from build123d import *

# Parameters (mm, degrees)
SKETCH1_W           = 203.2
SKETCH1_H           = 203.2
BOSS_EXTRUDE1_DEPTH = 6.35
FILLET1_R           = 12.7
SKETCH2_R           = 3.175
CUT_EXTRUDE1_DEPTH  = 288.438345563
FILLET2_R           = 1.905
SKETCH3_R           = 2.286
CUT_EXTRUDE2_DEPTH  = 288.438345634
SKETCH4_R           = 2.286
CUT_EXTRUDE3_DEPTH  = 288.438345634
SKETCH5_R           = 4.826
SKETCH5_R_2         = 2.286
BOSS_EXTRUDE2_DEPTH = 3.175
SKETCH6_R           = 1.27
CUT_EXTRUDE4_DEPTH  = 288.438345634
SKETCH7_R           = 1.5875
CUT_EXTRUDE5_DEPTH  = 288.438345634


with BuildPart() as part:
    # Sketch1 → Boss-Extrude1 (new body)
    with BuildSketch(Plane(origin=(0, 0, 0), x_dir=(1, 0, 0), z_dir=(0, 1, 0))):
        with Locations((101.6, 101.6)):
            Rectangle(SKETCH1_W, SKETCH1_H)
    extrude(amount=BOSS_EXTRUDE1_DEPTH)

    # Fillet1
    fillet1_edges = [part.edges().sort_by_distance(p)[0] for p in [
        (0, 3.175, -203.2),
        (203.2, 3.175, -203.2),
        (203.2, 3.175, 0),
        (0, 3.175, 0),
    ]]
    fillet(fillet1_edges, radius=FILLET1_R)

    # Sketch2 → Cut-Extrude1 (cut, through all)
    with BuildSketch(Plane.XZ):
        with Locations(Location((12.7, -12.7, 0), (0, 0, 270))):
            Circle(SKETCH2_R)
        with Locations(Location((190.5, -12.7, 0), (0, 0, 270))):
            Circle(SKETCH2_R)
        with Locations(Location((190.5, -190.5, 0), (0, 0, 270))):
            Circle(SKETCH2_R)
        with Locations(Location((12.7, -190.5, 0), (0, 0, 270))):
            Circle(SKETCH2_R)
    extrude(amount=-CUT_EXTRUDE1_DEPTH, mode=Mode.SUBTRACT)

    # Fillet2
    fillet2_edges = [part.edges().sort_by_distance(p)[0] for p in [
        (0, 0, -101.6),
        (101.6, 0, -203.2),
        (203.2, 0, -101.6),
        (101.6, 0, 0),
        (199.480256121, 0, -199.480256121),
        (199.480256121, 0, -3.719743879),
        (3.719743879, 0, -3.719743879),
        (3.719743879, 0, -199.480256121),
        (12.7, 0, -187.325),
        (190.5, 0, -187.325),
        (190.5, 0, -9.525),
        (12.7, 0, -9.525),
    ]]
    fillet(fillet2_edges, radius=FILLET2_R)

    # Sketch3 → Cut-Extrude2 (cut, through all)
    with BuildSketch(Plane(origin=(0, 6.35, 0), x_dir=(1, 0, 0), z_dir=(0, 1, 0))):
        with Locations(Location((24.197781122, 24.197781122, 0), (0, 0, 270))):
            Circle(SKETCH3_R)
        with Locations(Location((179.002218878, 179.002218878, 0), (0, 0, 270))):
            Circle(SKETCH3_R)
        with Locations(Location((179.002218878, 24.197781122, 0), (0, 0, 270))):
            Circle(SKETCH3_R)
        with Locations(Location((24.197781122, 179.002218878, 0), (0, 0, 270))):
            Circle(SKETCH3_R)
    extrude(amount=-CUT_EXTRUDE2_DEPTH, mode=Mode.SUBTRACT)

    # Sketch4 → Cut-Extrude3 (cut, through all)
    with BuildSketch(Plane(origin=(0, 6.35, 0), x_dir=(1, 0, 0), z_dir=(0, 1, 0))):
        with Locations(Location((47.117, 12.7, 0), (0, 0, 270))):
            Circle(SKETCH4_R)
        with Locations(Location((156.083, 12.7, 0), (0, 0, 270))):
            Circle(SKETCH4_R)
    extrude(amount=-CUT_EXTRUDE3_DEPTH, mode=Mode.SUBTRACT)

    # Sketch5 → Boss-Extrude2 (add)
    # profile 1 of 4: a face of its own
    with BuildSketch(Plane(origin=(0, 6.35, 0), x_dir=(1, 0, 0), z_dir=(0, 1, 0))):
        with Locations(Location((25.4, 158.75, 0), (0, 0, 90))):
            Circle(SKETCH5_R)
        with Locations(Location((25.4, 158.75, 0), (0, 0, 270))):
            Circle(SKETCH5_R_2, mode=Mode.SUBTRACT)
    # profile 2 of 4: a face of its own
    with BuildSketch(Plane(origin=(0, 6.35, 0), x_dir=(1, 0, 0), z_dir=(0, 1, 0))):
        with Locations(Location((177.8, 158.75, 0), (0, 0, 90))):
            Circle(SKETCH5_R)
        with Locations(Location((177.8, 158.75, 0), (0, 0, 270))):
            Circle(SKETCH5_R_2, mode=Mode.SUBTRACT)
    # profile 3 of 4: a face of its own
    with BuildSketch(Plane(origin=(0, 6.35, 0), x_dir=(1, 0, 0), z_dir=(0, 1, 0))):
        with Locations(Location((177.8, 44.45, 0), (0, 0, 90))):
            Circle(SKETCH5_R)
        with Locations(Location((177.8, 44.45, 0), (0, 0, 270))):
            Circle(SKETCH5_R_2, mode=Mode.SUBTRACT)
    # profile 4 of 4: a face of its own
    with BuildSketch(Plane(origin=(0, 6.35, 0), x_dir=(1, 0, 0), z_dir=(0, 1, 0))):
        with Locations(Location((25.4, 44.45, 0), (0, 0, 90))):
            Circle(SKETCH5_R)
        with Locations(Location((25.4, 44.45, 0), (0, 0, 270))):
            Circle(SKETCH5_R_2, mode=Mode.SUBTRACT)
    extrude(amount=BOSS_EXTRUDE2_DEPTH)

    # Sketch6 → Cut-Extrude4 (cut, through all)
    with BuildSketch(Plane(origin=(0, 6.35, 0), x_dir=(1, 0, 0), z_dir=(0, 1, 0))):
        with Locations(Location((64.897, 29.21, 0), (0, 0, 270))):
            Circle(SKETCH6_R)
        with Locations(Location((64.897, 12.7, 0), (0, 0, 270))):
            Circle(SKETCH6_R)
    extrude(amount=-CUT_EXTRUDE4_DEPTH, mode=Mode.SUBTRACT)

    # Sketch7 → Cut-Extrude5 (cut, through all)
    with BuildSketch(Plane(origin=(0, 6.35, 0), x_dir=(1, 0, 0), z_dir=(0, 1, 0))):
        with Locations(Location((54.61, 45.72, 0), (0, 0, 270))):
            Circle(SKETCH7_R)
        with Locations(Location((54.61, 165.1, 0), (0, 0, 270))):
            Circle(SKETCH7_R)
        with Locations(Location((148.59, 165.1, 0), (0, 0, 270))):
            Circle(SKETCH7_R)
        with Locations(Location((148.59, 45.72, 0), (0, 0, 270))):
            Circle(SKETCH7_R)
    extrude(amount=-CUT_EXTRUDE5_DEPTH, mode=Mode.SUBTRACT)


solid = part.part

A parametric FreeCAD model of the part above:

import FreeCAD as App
import Part
import Sketcher

V = App.Vector
Q = App.Units.Quantity


def edges_at(feature, points):
    """Names of the edges that pass closest to the given points."""
    edges = feature.Shape.Edges
    near = lambda p: min(range(len(edges)), key=lambda i: edges[i].distToShape(Part.Vertex(*p))[0])
    return sorted({f"Edge{near(p) + 1}" for p in points})


def add_polygon(sketch, points):
    """Adds a closed chain of lines whose ends are joined by coincident constraints."""
    first, n = sketch.GeometryCount, len(points)
    for a, b in zip(points, points[1:] + points[:1]):
        sketch.addGeometry(Part.LineSegment(App.Vector(*a, 0), App.Vector(*b, 0)), False)
    for i in range(n):
        sketch.addConstraint(Sketcher.Constraint("Coincident", first + i, 2, first + (i + 1) % n, 1))

doc = App.newDocument("Part")
params = doc.addObject("Spreadsheet::Sheet", "Params")
for row, (alias, value) in enumerate([
    ("sketch1_width", "8 in"),
    ("pad1_length", "0.25 in"),
    ("fillet_radius", "0.5 in"),
    ("sketch2_diameter", "0.25 in"),
    ("fillet2_radius", "0.075 in"),
    ("sketch3_diameter", "0.18 in"),
    ("sketch4_diameter", "0.18 in"),
    ("sketch5_diameter", "0.38 in"),
    ("sketch5_diameter2", "0.18 in"),
    ("pad2_length", "0.125 in"),
    ("sketch6_diameter", "0.1 in"),
    ("sketch7_diameter", "0.125 in"),
], start=1):
    params.set(f"A{row}", alias)
    params.set(f"B{row}", "=" + value)
    params.setAlias(f"B{row}", alias)

body = doc.addObject("PartDesign::Body", "Body")

# Sketch on XZ plane
sketch1 = doc.addObject("Sketcher::SketchObject", "Sketch")
body.addObject(sketch1)
sketch1.AttachmentSupport = (doc.XZ_Plane, [""])
sketch1.MapMode = "FlatFace"
add_polygon(sketch1, [(0, -203.2), (0, 0), (203.2, 0), (203.2, -203.2)])  # lines 0-3
sketch1.addConstraint([
    Sketcher.Constraint("Vertical", 0),
    Sketcher.Constraint("Horizontal", 1),
    Sketcher.Constraint("Vertical", 2),
    Sketcher.Constraint("Horizontal", 3),
    Sketcher.Constraint("Coincident", 0, 2, -1, 1),
    Sketcher.Constraint("Equal", 3, 0),
    Sketcher.Constraint("DistanceX", 1, 1, 1, 2, Q("8 in")),
])
sketch1.setExpression("Constraints[10]", "Params.sketch1_width")
pad1 = doc.addObject("PartDesign::Pad", "Pad")
body.addObject(pad1)
pad1.Profile = sketch1
pad1.setExpression("Length", "Params.pad1_length")
pad1.Reversed = True
doc.recompute()

fillet = doc.addObject("PartDesign::Fillet", "Fillet")
body.addObject(fillet)
fillet.Base = (pad1, edges_at(pad1, [
    (0, 3.175, -203.2),
    (203.2, 3.175, -203.2),
    (203.2, 3.175, 0),
    (0, 3.175, 0),
]))
fillet.setExpression("Radius", "Params.fillet_radius")

# Sketch on XZ plane
sketch2 = doc.addObject("Sketcher::SketchObject", "Sketch001")
body.addObject(sketch2)
sketch2.AttachmentSupport = (doc.XZ_Plane, [""])
sketch2.MapMode = "FlatFace"
sketch2.addGeometry([
    Part.Circle(V(12.7, -12.7, 0), V(0, 0, 1), 3.175),
    Part.Circle(V(190.5, -12.7, 0), V(0, 0, 1), 3.175),
    Part.Circle(V(190.5, -190.5, 0), V(0, 0, 1), 3.175),
    Part.Circle(V(12.7, -190.5, 0), V(0, 0, 1), 3.175),
], False)
sketch2.addConstraint([
    Sketcher.Constraint("Equal", 0, 1),
    Sketcher.Constraint("Equal", 1, 2),
    Sketcher.Constraint("Equal", 2, 3),
    Sketcher.Constraint("Horizontal", 0, 3, 1, 3),
    Sketcher.Constraint("Horizontal", 2, 3, 3, 3),
    Sketcher.Constraint("Vertical", 1, 3, 2, 3),
    Sketcher.Constraint("Vertical", 0, 3, 3, 3),
    Sketcher.Constraint("Diameter", 0, Q("0.25 in")),
    Sketcher.Constraint("DistanceX", 0, 3, 1, 3, Q("7 in")),
    Sketcher.Constraint("DistanceY", 2, 3, 1, 3, Q("7 in")),
    Sketcher.Constraint("DistanceX", -1, 1, 0, 3, Q("0.5 in")),
    Sketcher.Constraint("DistanceY", 0, 3, -1, 1, Q("0.5 in")),
])
sketch2.setExpression("Constraints[7]", "Params.sketch2_diameter")
pocket1 = doc.addObject("PartDesign::Pocket", "Pocket")
body.addObject(pocket1)
pocket1.Profile = sketch2
pocket1.Type = "ThroughAll"
doc.recompute()

fillet2 = doc.addObject("PartDesign::Fillet", "Fillet001")
body.addObject(fillet2)
fillet2.Base = (pocket1, edges_at(pocket1, [
    (0, 0, -101.6),
    (101.6, 0, -203.2),
    (203.2, 0, -101.6),
    (101.6, 0, 0),
    (199.48, 0, -199.48),
    (199.48, 0, -3.72),
    (3.72, 0, -3.72),
    (3.72, 0, -199.48),
    (12.7, 0, -187.325),
    (190.5, 0, -187.325),
    (190.5, 0, -9.525),
    (12.7, 0, -9.525),
]))
fillet2.setExpression("Radius", "Params.fillet2_radius")

# Sketch on XZ plane
sketch3 = doc.addObject("Sketcher::SketchObject", "Sketch002")
body.addObject(sketch3)
sketch3.AttachmentSupport = (doc.XZ_Plane, [""])
sketch3.MapMode = "FlatFace"
sketch3.AttachmentOffset = App.Placement(V(0, 0, -0.25 * 25.4), App.Rotation())
sketch3.addGeometry([
    Part.Circle(V(24.197781, -24.197781, 0), V(0, 0, 1), 2.286),
    Part.Circle(V(179.002219, -179.002219, 0), V(0, 0, 1), 2.286),
    Part.Circle(V(179.002219, -24.197781, 0), V(0, 0, 1), 2.286),
    Part.Circle(V(24.197781, -179.002219, 0), V(0, 0, 1), 2.286),
], False)
sketch3.addConstraint([
    Sketcher.Constraint("Equal", 0, 1),
    Sketcher.Constraint("Equal", 1, 2),
    Sketcher.Constraint("Equal", 2, 3),
    Sketcher.Constraint("Horizontal", 0, 3, 2, 3),
    Sketcher.Constraint("Horizontal", 1, 3, 3, 3),
    Sketcher.Constraint("Vertical", 1, 3, 2, 3),
    Sketcher.Constraint("Vertical", 0, 3, 3, 3),
    Sketcher.Constraint("Diameter", 0, Q("0.18 in")),
    Sketcher.Constraint("DistanceX", -1, 1, 0, 3, 24.197781),
    Sketcher.Constraint("DistanceY", 0, 3, -1, 1, 24.197781),
    Sketcher.Constraint("DistanceX", -1, 1, 1, 3, 179.002219),
    Sketcher.Constraint("DistanceY", 1, 3, -1, 1, 179.002219),
])
sketch3.setExpression("Constraints[7]", "Params.sketch3_diameter")
pocket2 = doc.addObject("PartDesign::Pocket", "Pocket001")
body.addObject(pocket2)
pocket2.Profile = sketch3
pocket2.Type = "ThroughAll"
pocket2.Reversed = True

# Sketch on XZ plane
sketch4 = doc.addObject("Sketcher::SketchObject", "Sketch003")
body.addObject(sketch4)
sketch4.AttachmentSupport = (doc.XZ_Plane, [""])
sketch4.MapMode = "FlatFace"
sketch4.AttachmentOffset = App.Placement(V(0, 0, -0.25 * 25.4), App.Rotation())
sketch4.addGeometry([
    Part.Circle(V(47.117, -12.7, 0), V(0, 0, 1), 2.286),
    Part.Circle(V(156.083, -12.7, 0), V(0, 0, 1), 2.286),
], False)
sketch4.addConstraint([
    Sketcher.Constraint("Equal", 0, 1),
    Sketcher.Constraint("Horizontal", 0, 3, 1, 3),
    Sketcher.Constraint("Diameter", 0, Q("0.18 in")),
    Sketcher.Constraint("DistanceY", 0, 3, -1, 1, Q("0.5 in")),
    Sketcher.Constraint("DistanceX", 0, 3, 1, 3, Q("4.29 in")),
    Sketcher.Constraint("DistanceX", -1, 1, 0, 3, Q("1.855 in")),
])
sketch4.setExpression("Constraints[2]", "Params.sketch4_diameter")
pocket3 = doc.addObject("PartDesign::Pocket", "Pocket002")
body.addObject(pocket3)
pocket3.Profile = sketch4
pocket3.Type = "ThroughAll"
pocket3.Reversed = True

# Sketch on XZ plane
sketch5 = doc.addObject("Sketcher::SketchObject", "Sketch004")
body.addObject(sketch5)
sketch5.AttachmentSupport = (doc.XZ_Plane, [""])
sketch5.MapMode = "FlatFace"
sketch5.AttachmentOffset = App.Placement(V(0, 0, -0.25 * 25.4), App.Rotation())
sketch5.addGeometry([
    Part.Circle(V(25.4, -158.75, 0), V(0, 0, 1), 4.826),  # 0
    Part.Circle(V(25.4, -158.75, 0), V(0, 0, 1), 2.286),  # 1
    Part.Circle(V(177.8, -158.75, 0), V(0, 0, 1), 4.826),  # 2
    Part.Circle(V(177.8, -158.75, 0), V(0, 0, 1), 2.286),  # 3
    Part.Circle(V(177.8, -44.45, 0), V(0, 0, 1), 4.826),  # 4
    Part.Circle(V(177.8, -44.45, 0), V(0, 0, 1), 2.286),  # 5
    Part.Circle(V(25.4, -44.45, 0), V(0, 0, 1), 4.826),  # 6
    Part.Circle(V(25.4, -44.45, 0), V(0, 0, 1), 2.286),  # 7
], False)
sketch5.addConstraint([
    Sketcher.Constraint("Coincident", 1, 3, 0, 3),
    Sketcher.Constraint("Coincident", 3, 3, 2, 3),
    Sketcher.Constraint("Coincident", 5, 3, 4, 3),
    Sketcher.Constraint("Coincident", 7, 3, 6, 3),
    Sketcher.Constraint("Equal", 0, 2),
    Sketcher.Constraint("Equal", 1, 3),
    Sketcher.Constraint("Equal", 2, 4),
    Sketcher.Constraint("Equal", 3, 5),
    Sketcher.Constraint("Equal", 4, 6),
    Sketcher.Constraint("Equal", 5, 7),
    Sketcher.Constraint("Horizontal", 1, 3, 2, 3),
    Sketcher.Constraint("Horizontal", 5, 3, 6, 3),
    Sketcher.Constraint("Vertical", 3, 3, 4, 3),
    Sketcher.Constraint("Vertical", 1, 3, 6, 3),
    Sketcher.Constraint("Diameter", 0, Q("0.38 in")),
    Sketcher.Constraint("Diameter", 1, Q("0.18 in")),
    Sketcher.Constraint("DistanceX", -1, 1, 0, 3, Q("1 in")),
    Sketcher.Constraint("DistanceX", -1, 1, 2, 3, Q("7 in")),
    Sketcher.Constraint("DistanceY", 2, 3, 4, 3, Q("4.5 in")),
    Sketcher.Constraint("DistanceY", 0, 3, -1, 1, Q("6.25 in")),
])
sketch5.setExpression("Constraints[14]", "Params.sketch5_diameter")
sketch5.setExpression("Constraints[15]", "Params.sketch5_diameter2")
pad2 = doc.addObject("PartDesign::Pad", "Pad001")
body.addObject(pad2)
pad2.Profile = sketch5
pad2.setExpression("Length", "Params.pad2_length")
pad2.Reversed = True

# Sketch on XZ plane
sketch6 = doc.addObject("Sketcher::SketchObject", "Sketch005")
body.addObject(sketch6)
sketch6.AttachmentSupport = (doc.XZ_Plane, [""])
sketch6.MapMode = "FlatFace"
sketch6.AttachmentOffset = App.Placement(V(0, 0, -0.25 * 25.4), App.Rotation())
sketch6.addGeometry([
    Part.Circle(V(64.897, -29.21, 0), V(0, 0, 1), 1.27),
    Part.Circle(V(64.897, -12.7, 0), V(0, 0, 1), 1.27),
], False)
sketch6.addConstraint([
    Sketcher.Constraint("Equal", 0, 1),
    Sketcher.Constraint("Vertical", 0, 3, 1, 3),
    Sketcher.Constraint("Diameter", 0, Q("0.1 in")),
    Sketcher.Constraint("DistanceY", 1, 3, -1, 1, Q("0.5 in")),
    Sketcher.Constraint("DistanceY", 0, 3, -1, 1, Q("1.15 in")),
    Sketcher.Constraint("DistanceX", -1, 1, 0, 3, Q("2.555 in")),
])
sketch6.setExpression("Constraints[2]", "Params.sketch6_diameter")
pocket4 = doc.addObject("PartDesign::Pocket", "Pocket003")
body.addObject(pocket4)
pocket4.Profile = sketch6
pocket4.Type = "ThroughAll"
pocket4.Reversed = True

# Sketch on XZ plane
sketch7 = doc.addObject("Sketcher::SketchObject", "Sketch006")
body.addObject(sketch7)
sketch7.AttachmentSupport = (doc.XZ_Plane, [""])
sketch7.MapMode = "FlatFace"
sketch7.AttachmentOffset = App.Placement(V(0, 0, -0.25 * 25.4), App.Rotation())
sketch7.addGeometry([
    Part.Circle(V(54.61, -45.72, 0), V(0, 0, 1), 1.5875),
    Part.Circle(V(54.61, -165.1, 0), V(0, 0, 1), 1.5875),
    Part.Circle(V(148.59, -165.1, 0), V(0, 0, 1), 1.5875),
    Part.Circle(V(148.59, -45.72, 0), V(0, 0, 1), 1.5875),
], False)
sketch7.addConstraint([
    Sketcher.Constraint("Equal", 0, 1),
    Sketcher.Constraint("Equal", 1, 2),
    Sketcher.Constraint("Equal", 2, 3),
    Sketcher.Constraint("Horizontal", 1, 3, 2, 3),
    Sketcher.Constraint("Horizontal", 0, 3, 3, 3),
    Sketcher.Constraint("Vertical", 0, 3, 1, 3),
    Sketcher.Constraint("Vertical", 2, 3, 3, 3),
    Sketcher.Constraint("Diameter", 0, Q("0.125 in")),
    Sketcher.Constraint("DistanceY", 0, 3, -1, 1, Q("1.8 in")),
    Sketcher.Constraint("DistanceY", 1, 3, -1, 1, Q("6.5 in")),
    Sketcher.Constraint("DistanceX", 1, 3, 2, 3, Q("3.7 in")),
    Sketcher.Constraint("DistanceX", -1, 1, 0, 3, Q("2.15 in")),
])
sketch7.setExpression("Constraints[7]", "Params.sketch7_diameter")
pocket5 = doc.addObject("PartDesign::Pocket", "Pocket004")
body.addObject(pocket5)
pocket5.Profile = sketch7
pocket5.Type = "ThroughAll"
pocket5.Reversed = True

doc.recompute()
